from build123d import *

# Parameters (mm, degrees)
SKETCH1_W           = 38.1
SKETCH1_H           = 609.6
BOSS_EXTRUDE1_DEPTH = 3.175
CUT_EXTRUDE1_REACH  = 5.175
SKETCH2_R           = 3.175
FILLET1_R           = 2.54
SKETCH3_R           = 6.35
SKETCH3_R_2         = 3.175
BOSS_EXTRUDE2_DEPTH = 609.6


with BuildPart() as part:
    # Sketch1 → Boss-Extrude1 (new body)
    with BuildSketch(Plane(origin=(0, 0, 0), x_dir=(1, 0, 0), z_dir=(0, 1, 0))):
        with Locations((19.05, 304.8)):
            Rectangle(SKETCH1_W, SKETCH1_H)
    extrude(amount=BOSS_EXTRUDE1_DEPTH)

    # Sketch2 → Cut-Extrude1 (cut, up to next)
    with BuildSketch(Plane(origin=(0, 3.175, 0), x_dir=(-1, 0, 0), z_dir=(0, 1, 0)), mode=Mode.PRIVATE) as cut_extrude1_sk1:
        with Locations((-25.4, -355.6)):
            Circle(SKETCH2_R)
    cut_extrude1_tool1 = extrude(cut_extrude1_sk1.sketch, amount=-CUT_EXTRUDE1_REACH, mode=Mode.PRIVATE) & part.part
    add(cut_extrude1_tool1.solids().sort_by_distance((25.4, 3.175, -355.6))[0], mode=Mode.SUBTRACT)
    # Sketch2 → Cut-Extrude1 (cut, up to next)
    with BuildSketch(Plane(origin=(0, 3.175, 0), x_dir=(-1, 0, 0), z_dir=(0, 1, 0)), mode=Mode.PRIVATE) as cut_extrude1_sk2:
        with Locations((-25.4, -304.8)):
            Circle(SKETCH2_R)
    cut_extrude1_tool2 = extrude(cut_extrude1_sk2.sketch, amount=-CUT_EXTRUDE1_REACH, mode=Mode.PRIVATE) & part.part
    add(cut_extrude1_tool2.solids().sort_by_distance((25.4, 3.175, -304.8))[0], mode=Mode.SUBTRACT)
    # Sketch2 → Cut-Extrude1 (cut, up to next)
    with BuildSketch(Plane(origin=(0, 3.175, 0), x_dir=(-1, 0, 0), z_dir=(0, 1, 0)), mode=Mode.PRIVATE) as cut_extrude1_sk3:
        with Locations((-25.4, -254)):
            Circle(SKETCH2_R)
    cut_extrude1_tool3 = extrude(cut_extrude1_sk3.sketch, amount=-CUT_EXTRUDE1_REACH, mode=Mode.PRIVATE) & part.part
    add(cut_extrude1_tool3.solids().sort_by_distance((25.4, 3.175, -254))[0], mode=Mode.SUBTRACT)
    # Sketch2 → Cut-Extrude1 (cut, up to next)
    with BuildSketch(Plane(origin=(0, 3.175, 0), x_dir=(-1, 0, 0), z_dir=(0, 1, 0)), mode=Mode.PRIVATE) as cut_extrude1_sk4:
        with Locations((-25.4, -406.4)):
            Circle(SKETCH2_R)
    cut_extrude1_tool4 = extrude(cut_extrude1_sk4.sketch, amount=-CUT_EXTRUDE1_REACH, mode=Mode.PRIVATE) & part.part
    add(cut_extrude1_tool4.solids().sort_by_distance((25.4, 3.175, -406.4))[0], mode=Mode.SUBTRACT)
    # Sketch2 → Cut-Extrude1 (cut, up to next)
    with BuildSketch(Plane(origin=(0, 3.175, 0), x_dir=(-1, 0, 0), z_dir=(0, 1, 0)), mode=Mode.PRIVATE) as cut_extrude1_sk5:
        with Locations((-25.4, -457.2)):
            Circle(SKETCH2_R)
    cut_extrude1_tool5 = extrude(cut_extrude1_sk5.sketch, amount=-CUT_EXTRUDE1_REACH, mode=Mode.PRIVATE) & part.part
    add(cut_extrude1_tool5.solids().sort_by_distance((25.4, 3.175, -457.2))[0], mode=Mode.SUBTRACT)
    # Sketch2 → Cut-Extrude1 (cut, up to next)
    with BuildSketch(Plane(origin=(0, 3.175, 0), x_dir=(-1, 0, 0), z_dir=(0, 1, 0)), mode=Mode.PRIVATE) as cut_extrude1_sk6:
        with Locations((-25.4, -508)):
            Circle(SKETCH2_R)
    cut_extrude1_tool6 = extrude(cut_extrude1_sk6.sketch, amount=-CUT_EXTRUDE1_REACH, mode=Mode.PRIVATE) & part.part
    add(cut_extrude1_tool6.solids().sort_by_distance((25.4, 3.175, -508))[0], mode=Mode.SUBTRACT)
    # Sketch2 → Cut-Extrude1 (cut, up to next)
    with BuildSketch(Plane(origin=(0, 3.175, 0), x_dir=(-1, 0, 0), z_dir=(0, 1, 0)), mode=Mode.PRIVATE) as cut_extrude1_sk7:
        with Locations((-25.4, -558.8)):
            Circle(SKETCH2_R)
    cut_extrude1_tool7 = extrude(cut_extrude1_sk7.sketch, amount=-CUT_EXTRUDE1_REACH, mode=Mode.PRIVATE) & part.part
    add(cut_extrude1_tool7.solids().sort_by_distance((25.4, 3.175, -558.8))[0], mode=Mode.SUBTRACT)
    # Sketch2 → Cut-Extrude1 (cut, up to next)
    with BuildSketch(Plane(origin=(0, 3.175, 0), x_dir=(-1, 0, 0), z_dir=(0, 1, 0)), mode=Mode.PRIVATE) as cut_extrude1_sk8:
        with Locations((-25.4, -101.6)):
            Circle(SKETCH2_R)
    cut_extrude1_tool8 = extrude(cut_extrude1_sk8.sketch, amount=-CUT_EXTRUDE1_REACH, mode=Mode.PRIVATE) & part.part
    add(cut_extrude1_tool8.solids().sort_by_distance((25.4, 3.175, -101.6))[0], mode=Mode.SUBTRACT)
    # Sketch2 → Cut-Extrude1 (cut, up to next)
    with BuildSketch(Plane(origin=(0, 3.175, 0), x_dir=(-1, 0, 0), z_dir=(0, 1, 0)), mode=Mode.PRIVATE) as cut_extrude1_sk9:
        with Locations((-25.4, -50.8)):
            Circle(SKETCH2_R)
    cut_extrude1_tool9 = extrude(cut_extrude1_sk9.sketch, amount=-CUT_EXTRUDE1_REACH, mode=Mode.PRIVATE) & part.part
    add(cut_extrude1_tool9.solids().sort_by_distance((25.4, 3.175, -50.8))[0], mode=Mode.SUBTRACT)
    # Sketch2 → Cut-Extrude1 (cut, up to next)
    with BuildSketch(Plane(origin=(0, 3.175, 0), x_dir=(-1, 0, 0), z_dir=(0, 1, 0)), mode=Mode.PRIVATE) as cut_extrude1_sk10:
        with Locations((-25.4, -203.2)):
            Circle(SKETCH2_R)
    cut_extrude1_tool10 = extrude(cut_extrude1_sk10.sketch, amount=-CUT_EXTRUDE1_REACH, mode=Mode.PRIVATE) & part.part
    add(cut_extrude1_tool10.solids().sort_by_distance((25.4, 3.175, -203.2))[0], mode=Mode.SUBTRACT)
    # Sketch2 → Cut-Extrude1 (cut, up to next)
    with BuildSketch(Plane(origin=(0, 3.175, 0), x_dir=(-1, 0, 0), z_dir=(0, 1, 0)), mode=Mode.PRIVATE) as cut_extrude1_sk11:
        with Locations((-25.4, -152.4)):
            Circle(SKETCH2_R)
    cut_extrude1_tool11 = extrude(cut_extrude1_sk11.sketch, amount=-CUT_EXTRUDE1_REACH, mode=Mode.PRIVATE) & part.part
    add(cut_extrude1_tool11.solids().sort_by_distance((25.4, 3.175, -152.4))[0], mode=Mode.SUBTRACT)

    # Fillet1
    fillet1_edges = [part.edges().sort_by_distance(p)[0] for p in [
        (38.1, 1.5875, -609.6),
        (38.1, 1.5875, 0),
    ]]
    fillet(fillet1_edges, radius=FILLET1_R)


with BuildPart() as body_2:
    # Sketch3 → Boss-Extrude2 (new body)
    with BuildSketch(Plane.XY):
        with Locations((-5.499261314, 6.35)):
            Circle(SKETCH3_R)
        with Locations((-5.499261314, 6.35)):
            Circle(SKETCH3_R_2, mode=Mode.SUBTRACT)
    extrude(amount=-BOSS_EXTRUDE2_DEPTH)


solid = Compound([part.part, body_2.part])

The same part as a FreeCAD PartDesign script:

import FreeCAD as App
import Part
import Sketcher
from FreeCAD import Vector
Q = App.Units.Quantity


def edges_at(feature, points):
    """Names of the edges that pass closest to the given points."""
    edges = feature.Shape.Edges
    near = lambda p: min(range(len(edges)), key=lambda i: edges[i].distToShape(Part.Vertex(*p))[0])
    return sorted({f"Edge{near(p) + 1}" for p in points})

doc = App.newDocument("Part")
body = doc.addObject("PartDesign::Body", "Body")

# Sketch on XZ plane
sketch1 = body.newObject("Sketcher::SketchObject", "Sketch")
sketch1.AttachmentSupport = (doc.getObject("XZ_Plane"), [""])
sketch1.MapMode = "FlatFace"
sketch1.addGeometry(Part.LineSegment(Vector(0, -609.6, 0), Vector(0, 0, 0)), False)
sketch1.addGeometry(Part.LineSegment(Vector(0, 0, 0), Vector(38.1, 0, 0)), False)
sketch1.addGeometry(Part.LineSegment(Vector(38.1, 0, 0), Vector(38.1, -609.6, 0)), False)
sketch1.addGeometry(Part.LineSegment(Vector(38.1, -609.6, 0), Vector(0, -609.6, 0)), False)
sketch1.addConstraint(Sketcher.Constraint("Coincident", 0, 2, 1, 1))
sketch1.addConstraint(Sketcher.Constraint("Coincident", 1, 2, 2, 1))
sketch1.addConstraint(Sketcher.Constraint("Coincident", 2, 2, 3, 1))
sketch1.addConstraint(Sketcher.Constraint("Coincident", 3, 2, 0, 1))
sketch1.addConstraint(Sketcher.Constraint("Vertical", 0))
sketch1.addConstraint(Sketcher.Constraint("Horizontal", 1))
sketch1.addConstraint(Sketcher.Constraint("Vertical", 2))
sketch1.addConstraint(Sketcher.Constraint("Horizontal", 3))
sketch1.addConstraint(Sketcher.Constraint("Coincident", 0, 2, -1, 1))
sketch1.addConstraint(Sketcher.Constraint("DistanceY", 0, 1, 0, 2, Q("24 in")))
sketch1.addConstraint(Sketcher.Constraint("DistanceX", 1, 1, 1, 2, Q("1.5 in")))
pad1 = body.newObject("PartDesign::Pad", "Pad")
pad1.Profile = sketch1
pad1.Length = Q("0.125 in")
pad1.Reversed = True

# Sketch on XZ plane
sketch2 = body.newObject("Sketcher::SketchObject", "Sketch001")
sketch2.AttachmentSupport = (doc.getObject("XZ_Plane"), [""])
sketch2.MapMode = "FlatFace"
sketch2.AttachmentOffset = App.Placement(Vector(0, 0, -0.125 * 25.4), App.Rotation())
sketch2.addGeometry(Part.Circle(Vector(25.4, -355.6, 0), Vector(0, 0, 1), 3.175), False)
sketch2.addConstraint(Sketcher.Constraint("Diameter", 0, Q("0.25 in")))
sketch2.addConstraint(Sketcher.Constraint("DistanceX", -1, 1, 0, 3, Q("1 in")))
sketch2.addConstraint(Sketcher.Constraint("DistanceY", 0, 3, -1, 1, Q("14 in")))
pocket1 = body.newObject("PartDesign::Pocket", "Pocket")
pocket1.Profile = sketch2
pocket1.Type = "UpToFirst"
pocket1.Reversed = True

# Sketch on XZ plane
sketch3 = body.newObject("Sketcher::SketchObject", "Sketch002")
sketch3.AttachmentSupport = (doc.getObject("XZ_Plane"), [""])
sketch3.MapMode = "FlatFace"
sketch3.AttachmentOffset = App.Placement(Vector(0, 0, -0.125 * 25.4), App.Rotation())
sketch3.addGeometry(Part.Circle(Vector(25.4, -304.8, 0), Vector(0, 0, 1), 3.175), False)
sketch3.addConstraint(Sketcher.Constraint("Diameter", 0, Q("0.25 in")))
sketch3.addConstraint(Sketcher.Constraint("DistanceX", -1, 1, 0, 3, Q("1 in")))
sketch3.addConstraint(Sketcher.Constraint("DistanceY", 0, 3, -1, 1, Q("12 in")))
pocket2 = body.newObject("PartDesign::Pocket", "Pocket001")
pocket2.Profile = sketch3
pocket2.Type = "UpToFirst"
pocket2.Reversed = True

# Sketch on XZ plane
sketch4 = body.newObject("Sketcher::SketchObject", "Sketch003")
sketch4.AttachmentSupport = (doc.getObject("XZ_Plane"), [""])
sketch4.MapMode = "FlatFace"
sketch4.AttachmentOffset = App.Placement(Vector(0, 0, -0.125 * 25.4), App.Rotation())
sketch4.addGeometry(Part.Circle(Vector(25.4, -254, 0), Vector(0, 0, 1), 3.175), False)
sketch4.addConstraint(Sketcher.Constraint("Diameter", 0, Q("0.25 in")))
sketch4.addConstraint(Sketcher.Constraint("DistanceX", -1, 1, 0, 3, Q("1 in")))
sketch4.addConstraint(Sketcher.Constraint("DistanceY", 0, 3, -1, 1, Q("10 in")))
pocket3 = body.newObject("PartDesign::Pocket", "Pocket002")
pocket3.Profile = sketch4
pocket3.Type = "UpToFirst"
pocket3.Reversed = True

# Sketch on XZ plane
sketch5 = body.newObject("Sketcher::SketchObject", "Sketch004")
sketch5.AttachmentSupport = (doc.getObject("XZ_Plane"), [""])
sketch5.MapMode = "FlatFace"
sketch5.AttachmentOffset = App.Placement(Vector(0, 0, -0.125 * 25.4), App.Rotation())
sketch5.addGeometry(Part.Circle(Vector(25.4, -406.4, 0), Vector(0, 0, 1), 3.175), False)
sketch5.addConstraint(Sketcher.Constraint("Diameter", 0, Q("0.25 in")))
sketch5.addConstraint(Sketcher.Constraint("DistanceX", -1, 1, 0, 3, Q("1 in")))
sketch5.addConstraint(Sketcher.Constraint("DistanceY", 0, 3, -1, 1, Q("16 in")))
pocket4 = body.newObject("PartDesign::Pocket", "Pocket003")
pocket4.Profile = sketch5
pocket4.Type = "UpToFirst"
pocket4.Reversed = True

# Sketch on XZ plane
sketch6 = body.newObject("Sketcher::SketchObject", "Sketch005")
sketch6.AttachmentSupport = (doc.getObject("XZ_Plane"), [""])
sketch6.MapMode = "FlatFace"
sketch6.AttachmentOffset = App.Placement(Vector(0, 0, -0.125 * 25.4), App.Rotation())
sketch6.addGeometry(Part.Circle(Vector(25.4, -457.2, 0), Vector(0, 0, 1), 3.175), False)
sketch6.addConstraint(Sketcher.Constraint("Diameter", 0, Q("0.25 in")))
sketch6.addConstraint(Sketcher.Constraint("DistanceX", -1, 1, 0, 3, Q("1 in")))
sketch6.addConstraint(Sketcher.Constraint("DistanceY", 0, 3, -1, 1, Q("18 in")))
pocket5 = body.newObject("PartDesign::Pocket", "Pocket004")
pocket5.Profile = sketch6
pocket5.Type = "UpToFirst"
pocket5.Reversed = True

# Sketch on XZ plane
sketch7 = body.newObject("Sketcher::SketchObject", "Sketch006")
sketch7.AttachmentSupport = (doc.getObject("XZ_Plane"), [""])
sketch7.MapMode = "FlatFace"
sketch7.AttachmentOffset = App.Placement(Vector(0, 0, -0.125 * 25.4), App.Rotation())
sketch7.addGeometry(Part.Circle(Vector(25.4, -508, 0), Vector(0, 0, 1), 3.175), False)
sketch7.addConstraint(Sketcher.Constraint("Diameter", 0, Q("0.25 in")))
sketch7.addConstraint(Sketcher.Constraint("DistanceX", -1, 1, 0, 3, Q("1 in")))
sketch7.addConstraint(Sketcher.Constraint("DistanceY", 0, 3, -1, 1, Q("20 in")))
pocket6 = body.newObject("PartDesign::Pocket", "Pocket005")
pocket6.Profile = sketch7
pocket6.Type = "UpToFirst"
pocket6.Reversed = True

# Sketch on XZ plane
sketch8 = body.newObject("Sketcher::SketchObject", "Sketch007")
sketch8.AttachmentSupport = (doc.getObject("XZ_Plane"), [""])
sketch8.MapMode = "FlatFace"
sketch8.AttachmentOffset = App.Placement(Vector(0, 0, -0.125 * 25.4), App.Rotation())
sketch8.addGeometry(Part.Circle(Vector(25.4, -558.8, 0), Vector(0, 0, 1), 3.175), False)
sketch8.addConstraint(Sketcher.Constraint("Diameter", 0, Q("0.25 in")))
sketch8.addConstraint(Sketcher.Constraint("DistanceX", -1, 1, 0, 3, Q("1 in")))
sketch8.addConstraint(Sketcher.Constraint("DistanceY", 0, 3, -1, 1, Q("22 in")))
pocket7 = body.newObject("PartDesign::Pocket", "Pocket006")
pocket7.Profile = sketch8
pocket7.Type = "UpToFirst"
pocket7.Reversed = True

# Sketch on XZ plane
sketch9 = body.newObject("Sketcher::SketchObject", "Sketch008")
sketch9.AttachmentSupport = (doc.getObject("XZ_Plane"), [""])
sketch9.MapMode = "FlatFace"
sketch9.AttachmentOffset = App.Placement(Vector(0, 0, -0.125 * 25.4), App.Rotation())
sketch9.addGeometry(Part.Circle(Vector(25.4, -101.6, 0), Vector(0, 0, 1), 3.175), False)
sketch9.addConstraint(Sketcher.Constraint("Diameter", 0, Q("0.25 in")))
sketch9.addConstraint(Sketcher.Constraint("DistanceX", -1, 1, 0, 3, Q("1 in")))
sketch9.addConstraint(Sketcher.Constraint("DistanceY", 0, 3, -1, 1, Q("4 in")))
pocket8 = body.newObject("PartDesign::Pocket", "Pocket007")
pocket8.Profile = sketch9
pocket8.Type = "UpToFirst"
pocket8.Reversed = True

# Sketch on XZ plane
sketch10 = body.newObject("Sketcher::SketchObject", "Sketch009")
sketch10.AttachmentSupport = (doc.getObject("XZ_Plane"), [""])
sketch10.MapMode = "FlatFace"
sketch10.AttachmentOffset = App.Placement(Vector(0, 0, -0.125 * 25.4), App.Rotation())
sketch10.addGeometry(Part.Circle(Vector(25.4, -50.8, 0), Vector(0, 0, 1), 3.175), False)
sketch10.addConstraint(Sketcher.Constraint("Diameter", 0, Q("0.25 in")))
sketch10.addConstraint(Sketcher.Constraint("DistanceX", -1, 1, 0, 3, Q("1 in")))
sketch10.addConstraint(Sketcher.Constraint("DistanceY", 0, 3, -1, 1, Q("2 in")))
pocket9 = body.newObject("PartDesign::Pocket", "Pocket008")
pocket9.Profile = sketch10
pocket9.Type = "UpToFirst"
pocket9.Reversed = True

# Sketch on XZ plane
sketch11 = body.newObject("Sketcher::SketchObject", "Sketch010")
sketch11.AttachmentSupport = (doc.getObject("XZ_Plane"), [""])
sketch11.MapMode = "FlatFace"
sketch11.AttachmentOffset = App.Placement(Vector(0, 0, -0.125 * 25.4), App.Rotation())
sketch11.addGeometry(Part.Circle(Vector(25.4, -203.2, 0), Vector(0, 0, 1), 3.175), False)
sketch11.addConstraint(Sketcher.Constraint("Diameter", 0, Q("0.25 in")))
sketch11.addConstraint(Sketcher.Constraint("DistanceX", -1, 1, 0, 3, Q("1 in")))
sketch11.addConstraint(Sketcher.Constraint("DistanceY", 0, 3, -1, 1, Q("8 in")))
pocket10 = body.newObject("PartDesign::Pocket", "Pocket009")
pocket10.Profile = sketch11
pocket10.Type = "UpToFirst"
pocket10.Reversed = True

# Sketch on XZ plane
sketch12 = body.newObject("Sketcher::SketchObject", "Sketch011")
sketch12.AttachmentSupport = (doc.getObject("XZ_Plane"), [""])
sketch12.MapMode = "FlatFace"
sketch12.AttachmentOffset = App.Placement(Vector(0, 0, -0.125 * 25.4), App.Rotation())
sketch12.addGeometry(Part.Circle(Vector(25.4, -152.4, 0), Vector(0, 0, 1), 3.175), False)
sketch12.addConstraint(Sketcher.Constraint("Diameter", 0, Q("0.25 in")))
sketch12.addConstraint(Sketcher.Constraint("DistanceX", -1, 1, 0, 3, Q("1 in")))
sketch12.addConstraint(Sketcher.Constraint("DistanceY", 0, 3, -1, 1, Q("6 in")))
pocket11 = body.newObject("PartDesign::Pocket", "Pocket010")
pocket11.Profile = sketch12
pocket11.Type = "UpToFirst"
pocket11.Reversed = True
doc.recompute()

fillet = body.newObject("PartDesign::Fillet", "Fillet")
fillet.Base = (pocket11, edges_at(pocket11, [(38.1, 1.587, -609.6), (38.1, 1.587, 0)]))
fillet.Radius = Q("0.1 in")
body2 = doc.addObject("PartDesign::Body", "Body001")

# Sketch on XY plane
sketch13 = body2.newObject("Sketcher::SketchObject", "Sketch012")
sketch13.AttachmentSupport = (doc.getObject("XY_Plane001"), [""])
sketch13.MapMode = "FlatFace"
sketch13.addGeometry(Part.Circle(Vector(-5.499261, 6.35, 0), Vector(0, 0, 1), 6.35), False)
sketch13.addGeometry(Part.Circle(Vector(-5.499261, 6.35, 0), Vector(0, 0, 1), 3.175), False)
sketch13.addConstraint(Sketcher.Constraint("Coincident", 1, 3, 0, 3))
sketch13.addConstraint(Sketcher.Constraint("Diameter", 0, Q("0.5 in")))
sketch13.addConstraint(Sketcher.Constraint("Diameter", 1, Q("0.25 in")))
sketch13.addConstraint(Sketcher.Constraint("DistanceY", -1, 1, 0, 3, Q("0.25 in")))
sketch13.addConstraint(Sketcher.Constraint("DistanceX", 0, 3, -1, 1, Q("5.499261 mm")))
pad2 = body2.newObject("PartDesign::Pad", "Pad001")
pad2.Profile = sketch13
pad2.Length = Q("24 in")
pad2.Reversed = True

doc.recompute()
